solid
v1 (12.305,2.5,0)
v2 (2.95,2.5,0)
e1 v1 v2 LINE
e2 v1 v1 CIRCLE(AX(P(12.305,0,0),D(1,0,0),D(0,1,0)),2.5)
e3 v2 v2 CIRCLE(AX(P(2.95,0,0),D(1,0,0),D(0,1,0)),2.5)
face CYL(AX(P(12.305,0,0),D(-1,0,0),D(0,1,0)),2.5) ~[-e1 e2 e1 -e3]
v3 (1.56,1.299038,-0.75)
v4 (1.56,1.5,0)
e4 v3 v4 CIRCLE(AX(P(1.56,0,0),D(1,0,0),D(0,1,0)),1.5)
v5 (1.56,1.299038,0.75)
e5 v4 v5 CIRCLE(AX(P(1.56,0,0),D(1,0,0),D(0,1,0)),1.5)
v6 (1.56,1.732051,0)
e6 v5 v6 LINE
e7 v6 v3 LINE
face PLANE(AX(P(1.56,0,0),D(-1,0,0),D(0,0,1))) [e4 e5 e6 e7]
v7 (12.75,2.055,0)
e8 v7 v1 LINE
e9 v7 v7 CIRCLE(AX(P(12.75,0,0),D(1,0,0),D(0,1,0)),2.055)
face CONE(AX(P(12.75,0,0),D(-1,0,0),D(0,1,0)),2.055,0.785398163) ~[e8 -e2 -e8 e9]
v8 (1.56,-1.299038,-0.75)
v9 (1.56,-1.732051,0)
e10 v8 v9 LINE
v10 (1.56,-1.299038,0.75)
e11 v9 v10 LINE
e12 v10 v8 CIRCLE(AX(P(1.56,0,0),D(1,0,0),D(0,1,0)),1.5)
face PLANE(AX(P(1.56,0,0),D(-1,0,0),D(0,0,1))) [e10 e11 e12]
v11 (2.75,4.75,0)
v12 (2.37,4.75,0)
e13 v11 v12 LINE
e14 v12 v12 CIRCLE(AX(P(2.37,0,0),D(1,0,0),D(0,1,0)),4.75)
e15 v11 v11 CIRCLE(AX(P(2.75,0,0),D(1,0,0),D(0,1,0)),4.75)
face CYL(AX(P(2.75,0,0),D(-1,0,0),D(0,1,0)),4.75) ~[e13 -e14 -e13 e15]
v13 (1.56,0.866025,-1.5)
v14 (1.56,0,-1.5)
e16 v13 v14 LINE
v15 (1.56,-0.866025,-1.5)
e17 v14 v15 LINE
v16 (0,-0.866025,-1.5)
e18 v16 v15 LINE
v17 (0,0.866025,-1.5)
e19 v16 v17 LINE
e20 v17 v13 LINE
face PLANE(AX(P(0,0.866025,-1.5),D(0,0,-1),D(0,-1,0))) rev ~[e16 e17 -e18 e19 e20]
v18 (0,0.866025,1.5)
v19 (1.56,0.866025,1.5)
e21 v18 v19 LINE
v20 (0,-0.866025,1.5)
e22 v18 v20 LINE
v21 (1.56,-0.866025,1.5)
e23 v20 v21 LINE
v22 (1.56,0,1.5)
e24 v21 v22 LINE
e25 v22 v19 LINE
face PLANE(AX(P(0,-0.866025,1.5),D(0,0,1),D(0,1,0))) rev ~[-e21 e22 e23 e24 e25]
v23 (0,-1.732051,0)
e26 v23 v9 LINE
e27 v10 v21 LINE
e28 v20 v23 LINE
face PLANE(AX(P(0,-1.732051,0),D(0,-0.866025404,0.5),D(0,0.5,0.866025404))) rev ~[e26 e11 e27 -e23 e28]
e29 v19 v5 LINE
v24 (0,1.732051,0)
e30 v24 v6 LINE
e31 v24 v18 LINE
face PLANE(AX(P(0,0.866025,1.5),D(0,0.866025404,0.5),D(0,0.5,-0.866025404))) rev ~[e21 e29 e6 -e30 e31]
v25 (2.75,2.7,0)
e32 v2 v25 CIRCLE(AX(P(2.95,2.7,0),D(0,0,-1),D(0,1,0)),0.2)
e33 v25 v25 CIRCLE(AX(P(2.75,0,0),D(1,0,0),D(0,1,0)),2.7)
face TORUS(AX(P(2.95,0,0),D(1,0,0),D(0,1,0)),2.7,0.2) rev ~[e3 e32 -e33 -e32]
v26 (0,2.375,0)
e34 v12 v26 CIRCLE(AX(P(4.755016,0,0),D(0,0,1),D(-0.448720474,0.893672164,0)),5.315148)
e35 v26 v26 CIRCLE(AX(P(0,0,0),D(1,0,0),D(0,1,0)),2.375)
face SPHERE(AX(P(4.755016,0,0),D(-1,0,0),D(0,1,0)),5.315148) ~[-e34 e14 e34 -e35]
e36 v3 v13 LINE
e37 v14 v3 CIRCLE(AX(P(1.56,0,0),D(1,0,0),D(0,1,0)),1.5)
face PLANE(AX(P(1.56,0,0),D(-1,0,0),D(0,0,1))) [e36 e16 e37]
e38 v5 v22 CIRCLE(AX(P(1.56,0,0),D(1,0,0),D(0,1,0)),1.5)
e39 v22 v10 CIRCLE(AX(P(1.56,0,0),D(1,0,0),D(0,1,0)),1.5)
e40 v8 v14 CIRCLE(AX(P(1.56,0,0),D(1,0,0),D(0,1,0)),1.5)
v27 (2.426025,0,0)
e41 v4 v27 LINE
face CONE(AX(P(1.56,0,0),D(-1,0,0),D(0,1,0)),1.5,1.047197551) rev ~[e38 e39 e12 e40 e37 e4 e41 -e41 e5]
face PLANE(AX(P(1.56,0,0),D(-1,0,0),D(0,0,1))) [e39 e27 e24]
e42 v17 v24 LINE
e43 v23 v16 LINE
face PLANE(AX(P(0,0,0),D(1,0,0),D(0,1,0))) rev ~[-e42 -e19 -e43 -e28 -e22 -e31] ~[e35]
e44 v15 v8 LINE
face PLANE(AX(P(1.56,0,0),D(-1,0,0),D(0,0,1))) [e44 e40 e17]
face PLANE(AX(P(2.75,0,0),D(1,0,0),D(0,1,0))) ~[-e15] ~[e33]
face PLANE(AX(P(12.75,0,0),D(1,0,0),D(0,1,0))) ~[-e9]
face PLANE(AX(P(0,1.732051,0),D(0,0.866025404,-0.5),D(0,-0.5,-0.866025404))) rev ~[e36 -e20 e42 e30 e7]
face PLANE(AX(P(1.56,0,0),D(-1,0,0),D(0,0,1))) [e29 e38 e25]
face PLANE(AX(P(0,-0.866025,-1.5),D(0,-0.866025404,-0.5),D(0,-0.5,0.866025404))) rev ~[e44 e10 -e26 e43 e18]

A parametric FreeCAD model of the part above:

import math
import FreeCAD as App
import Part
import Sketcher
Q = App.Units.Quantity


def edges_at(feature, points):
    """Names of the edges that pass closest to the given points."""
    edges = feature.Shape.Edges
    near = lambda p: min(range(len(edges)), key=lambda i: edges[i].distToShape(Part.Vertex(*p))[0])
    return sorted({f"Edge{near(p) + 1}" for p in points})


def add_polygon(sketch, points):
    """Adds a closed chain of lines whose ends are joined by coincident constraints."""
    first, n = sketch.GeometryCount, len(points)
    for a, b in zip(points, points[1:] + points[:1]):
        sketch.addGeometry(Part.LineSegment(App.Vector(*a, 0), App.Vector(*b, 0)), False)
    for i in range(n):
        sketch.addConstraint(Sketcher.Constraint("Coincident", first + i, 2, first + (i + 1) % n, 1))

doc = App.newDocument("Part")
body = doc.addObject("PartDesign::Body", "Body")

sketch1 = body.newObject("Sketcher::SketchObject", "Sketch")
sketch1.AttachmentSupport = (doc.getObject("XY_Plane"), [""])
sketch1.MapMode = "FlatFace"
sketch1.addGeometry([
    Part.LineSegment(App.Vector(12.75, 0, 0), App.Vector(12.75, 2.055, 0)),
    Part.LineSegment(App.Vector(12.75, 2.055, 0), App.Vector(12.305, 2.5, 0)),
    Part.LineSegment(App.Vector(12.305, 2.5, 0), App.Vector(2.75, 2.5, 0)),
    Part.LineSegment(App.Vector(2.75, 2.5, 0), App.Vector(2.75, 4.75, 0)),
    Part.LineSegment(App.Vector(2.75, 4.75, 0), App.Vector(2.37, 4.75, 0)),
    Part.ArcOfCircle(Part.Circle(App.Vector(4.755016, 0, 0), App.Vector(0, 0, 1), 5.315148), math.radians(116.66162), math.radians(153.459129)),
    Part.LineSegment(App.Vector(0, 2.375, 0), App.Vector(0, 0, 0)),
    Part.LineSegment(App.Vector(0, 0, 0), App.Vector(12.75, 0, 0)),
], False)
sketch1.addConstraint([
    Sketcher.Constraint("Coincident", 0, 2, 1, 1),
    Sketcher.Constraint("Coincident", 1, 2, 2, 1),
    Sketcher.Constraint("Coincident", 2, 2, 3, 1),
    Sketcher.Constraint("Coincident", 3, 2, 4, 1),
    Sketcher.Constraint("Coincident", 4, 2, 5, 1),
    Sketcher.Constraint("Coincident", 5, 2, 6, 1),
    Sketcher.Constraint("Coincident", 6, 2, 7, 1),
    Sketcher.Constraint("Coincident", 7, 2, 0, 1),
    Sketcher.Constraint("Vertical", 0),
    Sketcher.Constraint("Horizontal", 2),
    Sketcher.Constraint("Vertical", 3),
    Sketcher.Constraint("Horizontal", 4),
    Sketcher.Constraint("Vertical", 6),
    Sketcher.Constraint("Horizontal", 7),
    Sketcher.Constraint("Coincident", 6, 2, -1, 1),
    Sketcher.Constraint("PointOnObject", 5, 3, -1),
    Sketcher.Constraint("Angle", 1, Q("135 deg")),
    Sketcher.Constraint("DistanceX", 2, 2, 0, 2, 10.0),
    Sketcher.Constraint("DistanceX", 4, 2, 4, 1, 0.38),
    Sketcher.Constraint("DistanceX", 7, 1, 7, 2, 12.75),
    Sketcher.Constraint("DistanceY", 3, 1, 3, 2, 2.25),
    Sketcher.Constraint("DistanceY", -1, 1, 1, 2, 2.5),
    Sketcher.Constraint("DistanceX", 2, 2, 2, 1, 9.555),
    Sketcher.Constraint("DistanceY", 6, 2, 6, 1, 2.375),
])
revolution = body.newObject("PartDesign::Revolution", "Revolution")
revolution.Profile = sketch1
revolution.ReferenceAxis = (sketch1, ["H_Axis"])
revolution.Angle = 360
doc.recompute()

fillet = body.newObject("PartDesign::Fillet", "Fillet")
fillet.Base = (revolution, edges_at(revolution, [(2.75, -2.5, 0)]))
fillet.Radius = 0.2

sketch2 = body.newObject("Sketcher::SketchObject", "Sketch001")
sketch2.AttachmentSupport = (doc.getObject("XY_Plane"), [""])
sketch2.MapMode = "FlatFace"
add_polygon(sketch2, [(1.56, 1.5), (0, 1.5), (0, 0), (2.426025, 0)])
sketch2.addConstraint([
    Sketcher.Constraint("Horizontal", 0),
    Sketcher.Constraint("Vertical", 1),
    Sketcher.Constraint("Horizontal", 2),
    Sketcher.Constraint("Coincident", 1, 2, -1, 1),
    Sketcher.Constraint("Angle", 3, Q("120 deg")),
    Sketcher.Constraint("DistanceY", 1, 2, 1, 1, 1.5),
    Sketcher.Constraint("DistanceX", 0, 2, 0, 1, 1.56),
])
groove = body.newObject("PartDesign::Groove", "Groove")
groove.Profile = sketch2
groove.ReferenceAxis = (sketch2, ["H_Axis"])
groove.Angle = 360

sketch3 = body.newObject("Sketcher::SketchObject", "Sketch002")
sketch3.AttachmentSupport = (doc.getObject("YZ_Plane"), [""])
sketch3.MapMode = "FlatFace"
add_polygon(sketch3, [(0.866025, 1.5), (-0.866025, 1.5), (-1.732051, 0), (-0.866025, -1.5), (0.866025, -1.5), (1.732051, 0)])
sketch3.addConstraint([
    Sketcher.Constraint("Horizontal", 0),
    Sketcher.Constraint("Horizontal", 3),
    Sketcher.Constraint("Symmetric", 0, 2, 3, 2, -1, 1),
    Sketcher.Constraint("Symmetric", 1, 2, 4, 2, -1, 1),
    Sketcher.Constraint("PointOnObject", 1, 2, -1),
    Sketcher.Constraint("Parallel", 2, 5),
    Sketcher.Constraint("Vertical", 0, 2, 2, 2),
    Sketcher.Constraint("Angle", 1, Q("-120 deg")),
    Sketcher.Constraint("DistanceY", 2, 2, 0, 2, 3.0),
    Sketcher.Constraint("DistanceX", 0, 2, 0, 1, 1.732051),
])
pocket1 = body.newObject("PartDesign::Pocket", "Pocket")
pocket1.Profile = sketch3
pocket1.Length = 1.56
pocket1.Reversed = True

doc.recompute()
